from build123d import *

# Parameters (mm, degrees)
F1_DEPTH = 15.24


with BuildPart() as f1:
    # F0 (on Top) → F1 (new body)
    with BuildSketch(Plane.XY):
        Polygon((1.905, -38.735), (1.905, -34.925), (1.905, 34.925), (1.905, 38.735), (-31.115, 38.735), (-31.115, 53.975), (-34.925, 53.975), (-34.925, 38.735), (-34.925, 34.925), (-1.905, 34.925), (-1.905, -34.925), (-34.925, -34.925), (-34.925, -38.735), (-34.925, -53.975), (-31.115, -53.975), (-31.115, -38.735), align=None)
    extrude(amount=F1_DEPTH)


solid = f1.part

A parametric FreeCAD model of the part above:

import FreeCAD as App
import Part
import Sketcher
from FreeCAD import Vector
Q = App.Units.Quantity


def add_polygon(sketch, points):
    """Adds a closed chain of lines whose ends are joined by coincident constraints."""
    first, n = sketch.GeometryCount, len(points)
    for a, b in zip(points, points[1:] + points[:1]):
        sketch.addGeometry(Part.LineSegment(App.Vector(*a, 0), App.Vector(*b, 0)), False)
    for i in range(n):
        sketch.addConstraint(Sketcher.Constraint("Coincident", first + i, 2, first + (i + 1) % n, 1))

doc = App.newDocument("Part")
body = doc.addObject("PartDesign::Body", "Body")

sketch1 = body.newObject("Sketcher::SketchObject", "Sketch")
sketch1.AttachmentSupport = (doc.getObject("XY_Plane"), [""])
sketch1.MapMode = "FlatFace"
add_polygon(sketch1, [(1.905, -38.735), (1.905, 38.735), (-31.115, 38.735), (-31.115, 53.975), (-34.925, 53.975), (-34.925, 34.925), (-1.905, 34.925), (-1.905, -34.925), (-34.925, -34.925), (-34.925, -53.975), (-31.115, -53.975), (-31.115, -38.735)])
sketch1.addConstraint(Sketcher.Constraint("Vertical", 0))
sketch1.addConstraint(Sketcher.Constraint("Horizontal", 1))
sketch1.addConstraint(Sketcher.Constraint("Vertical", 2))
sketch1.addConstraint(Sketcher.Constraint("Horizontal", 3))
sketch1.addConstraint(Sketcher.Constraint("Vertical", 4))
sketch1.addConstraint(Sketcher.Constraint("Horizontal", 5))
sketch1.addConstraint(Sketcher.Constraint("Vertical", 6))
sketch1.addConstraint(Sketcher.Constraint("Horizontal", 7))
sketch1.addConstraint(Sketcher.Constraint("Vertical", 8))
sketch1.addConstraint(Sketcher.Constraint("Horizontal", 9))
sketch1.addConstraint(Sketcher.Constraint("Vertical", 10))
sketch1.addConstraint(Sketcher.Constraint("Horizontal", 11))
sketch1.addConstraint(Sketcher.Constraint("Symmetric", 4, 2, 7, 2, -1))
sketch1.addConstraint(Sketcher.Constraint("Symmetric", 2, 2, 9, 2, -1))
sketch1.addConstraint(Sketcher.Constraint("Equal", 1, 5))
sketch1.addConstraint(Sketcher.Constraint("Equal", 2, 10))
sketch1.addConstraint(Sketcher.Constraint("DistanceX", 1, 2, 1, 1, Q("1.3 in")))
sketch1.addConstraint(Sketcher.Constraint("DistanceY", 2, 1, 2, 2, Q("0.6 in")))
sketch1.addConstraint(Sketcher.Constraint("DistanceX", 3, 2, 3, 1, Q("0.15 in")))
sketch1.addConstraint(Sketcher.Constraint("DistanceY", 0, 1, 0, 2, Q("3.05 in")))
sketch1.addConstraint(Sketcher.Constraint("DistanceY", 4, 2, 4, 1, Q("0.75 in")))
sketch1.addConstraint(Sketcher.Constraint("DistanceX", -1, 1, 0, 2, Q("0.075 in")))
pad1 = body.newObject("PartDesign::Pad", "Pad")
pad1.Profile = sketch1
pad1.Length = Q("0.6 in")

doc.recompute()
